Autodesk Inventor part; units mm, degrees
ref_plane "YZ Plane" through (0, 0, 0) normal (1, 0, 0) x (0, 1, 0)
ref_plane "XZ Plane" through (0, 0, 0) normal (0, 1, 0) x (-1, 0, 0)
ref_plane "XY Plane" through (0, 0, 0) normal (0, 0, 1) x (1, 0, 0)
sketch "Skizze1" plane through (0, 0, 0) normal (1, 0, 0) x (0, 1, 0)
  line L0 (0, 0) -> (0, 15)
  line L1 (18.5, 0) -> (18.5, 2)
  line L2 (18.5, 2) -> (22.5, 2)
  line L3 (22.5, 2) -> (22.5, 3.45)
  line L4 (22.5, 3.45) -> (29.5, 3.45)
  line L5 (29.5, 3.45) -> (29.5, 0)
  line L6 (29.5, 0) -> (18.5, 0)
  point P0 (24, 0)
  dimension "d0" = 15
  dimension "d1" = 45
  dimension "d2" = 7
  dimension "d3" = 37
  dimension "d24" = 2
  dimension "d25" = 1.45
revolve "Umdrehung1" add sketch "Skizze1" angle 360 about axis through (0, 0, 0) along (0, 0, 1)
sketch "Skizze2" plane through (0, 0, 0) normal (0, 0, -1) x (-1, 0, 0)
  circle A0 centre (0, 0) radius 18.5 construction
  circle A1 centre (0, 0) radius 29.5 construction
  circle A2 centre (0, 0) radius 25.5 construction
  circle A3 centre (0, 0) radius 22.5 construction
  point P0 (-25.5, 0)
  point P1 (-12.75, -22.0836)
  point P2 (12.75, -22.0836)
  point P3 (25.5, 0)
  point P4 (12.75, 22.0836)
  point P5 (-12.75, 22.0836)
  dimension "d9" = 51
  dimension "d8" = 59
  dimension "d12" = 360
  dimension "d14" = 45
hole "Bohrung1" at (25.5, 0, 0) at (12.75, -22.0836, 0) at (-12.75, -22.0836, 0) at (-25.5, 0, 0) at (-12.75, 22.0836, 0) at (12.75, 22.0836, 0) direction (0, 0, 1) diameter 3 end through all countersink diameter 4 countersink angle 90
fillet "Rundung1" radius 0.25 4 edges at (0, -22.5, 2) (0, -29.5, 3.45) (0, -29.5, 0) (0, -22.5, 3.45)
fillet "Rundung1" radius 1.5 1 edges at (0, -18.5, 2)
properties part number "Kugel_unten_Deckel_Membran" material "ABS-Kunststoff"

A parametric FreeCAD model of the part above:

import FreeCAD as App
import Part
import Sketcher

V = App.Vector
Q = App.Units.Quantity


def edges_at(feature, points):
    """Names of the edges that pass closest to the given points."""
    edges = feature.Shape.Edges
    near = lambda p: min(range(len(edges)), key=lambda i: edges[i].distToShape(Part.Vertex(*p))[0])
    return sorted({f"Edge{near(p) + 1}" for p in points})

doc = App.newDocument("Part")
body = doc.addObject("PartDesign::Body", "Body")

sketch1 = body.newObject("Sketcher::SketchObject", "Sketch")
sketch1.AttachmentSupport = (doc.getObject("YZ_Plane"), [""])
sketch1.MapMode = "FlatFace"
sketch1.addGeometry(Part.LineSegment(V(18.5, 2, 0), V(18.5, 0, 0)), False)
sketch1.addGeometry(Part.LineSegment(V(18.5, 0, 0), V(29.5, 0, 0)), False)
sketch1.addGeometry(Part.LineSegment(V(29.5, 0, 0), V(29.5, 3.5, 0)), False)
sketch1.addGeometry(Part.LineSegment(V(29.5, 3.5, 0), V(22.5, 3.5, 0)), False)
sketch1.addGeometry(Part.LineSegment(V(22.5, 3.5, 0), V(22.5, 2, 0)), False)
sketch1.addGeometry(Part.LineSegment(V(22.5, 2, 0), V(18.5, 2, 0)), False)
sketch1.addConstraint(Sketcher.Constraint("Coincident", 0, 2, 1, 1))
sketch1.addConstraint(Sketcher.Constraint("Coincident", 1, 2, 2, 1))
sketch1.addConstraint(Sketcher.Constraint("Coincident", 2, 2, 3, 1))
sketch1.addConstraint(Sketcher.Constraint("Coincident", 3, 2, 4, 1))
sketch1.addConstraint(Sketcher.Constraint("Coincident", 4, 2, 5, 1))
sketch1.addConstraint(Sketcher.Constraint("Coincident", 5, 2, 0, 1))
sketch1.addConstraint(Sketcher.Constraint("Vertical", 0))
sketch1.addConstraint(Sketcher.Constraint("Horizontal", 1))
sketch1.addConstraint(Sketcher.Constraint("Vertical", 2))
sketch1.addConstraint(Sketcher.Constraint("Horizontal", 3))
sketch1.addConstraint(Sketcher.Constraint("Vertical", 4))
sketch1.addConstraint(Sketcher.Constraint("Horizontal", 5))
sketch1.addConstraint(Sketcher.Constraint("PointOnObject", 0, 2, -1))
sketch1.addConstraint(Sketcher.Constraint("DistanceX", 3, 2, 3, 1, Q("7 mm")))
sketch1.addConstraint(Sketcher.Constraint("DistanceY", 0, 2, 0, 1, Q("2 mm")))
sketch1.addConstraint(Sketcher.Constraint("DistanceY", 4, 2, 4, 1, Q("1.45 mm")))
sketch1.addConstraint(Sketcher.Constraint("DistanceX", 1, 1, 1, 2, Q("11 mm")))
sketch1.addConstraint(Sketcher.Constraint("DistanceX", -1, 1, 0, 2, Q("18.5 mm")))
revolution = body.newObject("PartDesign::Revolution", "Revolution")
revolution.Profile = sketch1
revolution.ReferenceAxis = (sketch1, ["V_Axis"])
revolution.Angle = 360

sketch2 = body.newObject("Sketcher::SketchObject", "Sketch001")
sketch2.AttachmentSupport = (doc.getObject("XY_Plane"), [""])
sketch2.MapMode = "FlatFace"
sketch2.addGeometry(Part.Circle(V(25.5, 0, 0), V(0, 0, 1), 1.5), False)
sketch2.addGeometry(Part.Circle(V(12.8, -22.1, 0), V(0, 0, 1), 1.5), False)
sketch2.addGeometry(Part.Circle(V(-12.8, -22.1, 0), V(0, 0, 1), 1.5), False)
sketch2.addGeometry(Part.Circle(V(-25.5, 0, 0), V(0, 0, 1), 1.5), False)
sketch2.addGeometry(Part.Circle(V(-12.8, 22.1, 0), V(0, 0, 1), 1.5), False)
sketch2.addGeometry(Part.Circle(V(12.8, 22.1, 0), V(0, 0, 1), 1.5), False)
sketch2.addConstraint(Sketcher.Constraint("Equal", 0, 1))
sketch2.addConstraint(Sketcher.Constraint("Equal", 1, 2))
sketch2.addConstraint(Sketcher.Constraint("Equal", 2, 3))
sketch2.addConstraint(Sketcher.Constraint("Equal", 3, 4))
sketch2.addConstraint(Sketcher.Constraint("Equal", 4, 5))
sketch2.addConstraint(Sketcher.Constraint("Symmetric", 0, 3, 3, 3, -1, 1))
sketch2.addConstraint(Sketcher.Constraint("Symmetric", 1, 3, 4, 3, -1, 1))
sketch2.addConstraint(Sketcher.Constraint("Symmetric", 2, 3, 5, 3, -1, 1))
sketch2.addConstraint(Sketcher.Constraint("Symmetric", 1, 3, 2, 3, -2))
sketch2.addConstraint(Sketcher.Constraint("PointOnObject", 0, 3, -1))
sketch2.addConstraint(Sketcher.Constraint("Diameter", 0, Q("3 mm")))
sketch2.addConstraint(Sketcher.Constraint("DistanceX", 3, 3, 0, 3, Q("51 mm")))
sketch2.addConstraint(Sketcher.Constraint("DistanceX", 2, 3, 1, 3, Q("25.5 mm")))
sketch2.addConstraint(Sketcher.Constraint("DistanceY", 1, 3, -1, 1, Q("22.0836 mm")))
doc.recompute()
hole = body.newObject("PartDesign::Hole", "Hole")
hole.Profile = sketch2
hole.ThreadType = "None"
hole.Diameter = 3
hole.DepthType = "ThroughAll"
hole.HoleCutType = "Countersink"
hole.HoleCutDiameter = 4
hole.HoleCutCountersinkAngle = 90
hole.Reversed = True
doc.recompute()

fillet = body.newObject("PartDesign::Fillet", "Fillet")
fillet.Base = (hole, edges_at(hole, [
    (0, -22.5, 2),
    (0, -29.5, 3.45),
    (0, -29.5, 0),
    (0, -22.5, 3.45),
]))
fillet.Radius = 0.25
doc.recompute()

fillet2 = body.newObject("PartDesign::Fillet", "Fillet001")
fillet2.Base = (fillet, edges_at(fillet, [(0, -18.5, 2)]))
fillet2.Radius = 1.5

doc.recompute()
